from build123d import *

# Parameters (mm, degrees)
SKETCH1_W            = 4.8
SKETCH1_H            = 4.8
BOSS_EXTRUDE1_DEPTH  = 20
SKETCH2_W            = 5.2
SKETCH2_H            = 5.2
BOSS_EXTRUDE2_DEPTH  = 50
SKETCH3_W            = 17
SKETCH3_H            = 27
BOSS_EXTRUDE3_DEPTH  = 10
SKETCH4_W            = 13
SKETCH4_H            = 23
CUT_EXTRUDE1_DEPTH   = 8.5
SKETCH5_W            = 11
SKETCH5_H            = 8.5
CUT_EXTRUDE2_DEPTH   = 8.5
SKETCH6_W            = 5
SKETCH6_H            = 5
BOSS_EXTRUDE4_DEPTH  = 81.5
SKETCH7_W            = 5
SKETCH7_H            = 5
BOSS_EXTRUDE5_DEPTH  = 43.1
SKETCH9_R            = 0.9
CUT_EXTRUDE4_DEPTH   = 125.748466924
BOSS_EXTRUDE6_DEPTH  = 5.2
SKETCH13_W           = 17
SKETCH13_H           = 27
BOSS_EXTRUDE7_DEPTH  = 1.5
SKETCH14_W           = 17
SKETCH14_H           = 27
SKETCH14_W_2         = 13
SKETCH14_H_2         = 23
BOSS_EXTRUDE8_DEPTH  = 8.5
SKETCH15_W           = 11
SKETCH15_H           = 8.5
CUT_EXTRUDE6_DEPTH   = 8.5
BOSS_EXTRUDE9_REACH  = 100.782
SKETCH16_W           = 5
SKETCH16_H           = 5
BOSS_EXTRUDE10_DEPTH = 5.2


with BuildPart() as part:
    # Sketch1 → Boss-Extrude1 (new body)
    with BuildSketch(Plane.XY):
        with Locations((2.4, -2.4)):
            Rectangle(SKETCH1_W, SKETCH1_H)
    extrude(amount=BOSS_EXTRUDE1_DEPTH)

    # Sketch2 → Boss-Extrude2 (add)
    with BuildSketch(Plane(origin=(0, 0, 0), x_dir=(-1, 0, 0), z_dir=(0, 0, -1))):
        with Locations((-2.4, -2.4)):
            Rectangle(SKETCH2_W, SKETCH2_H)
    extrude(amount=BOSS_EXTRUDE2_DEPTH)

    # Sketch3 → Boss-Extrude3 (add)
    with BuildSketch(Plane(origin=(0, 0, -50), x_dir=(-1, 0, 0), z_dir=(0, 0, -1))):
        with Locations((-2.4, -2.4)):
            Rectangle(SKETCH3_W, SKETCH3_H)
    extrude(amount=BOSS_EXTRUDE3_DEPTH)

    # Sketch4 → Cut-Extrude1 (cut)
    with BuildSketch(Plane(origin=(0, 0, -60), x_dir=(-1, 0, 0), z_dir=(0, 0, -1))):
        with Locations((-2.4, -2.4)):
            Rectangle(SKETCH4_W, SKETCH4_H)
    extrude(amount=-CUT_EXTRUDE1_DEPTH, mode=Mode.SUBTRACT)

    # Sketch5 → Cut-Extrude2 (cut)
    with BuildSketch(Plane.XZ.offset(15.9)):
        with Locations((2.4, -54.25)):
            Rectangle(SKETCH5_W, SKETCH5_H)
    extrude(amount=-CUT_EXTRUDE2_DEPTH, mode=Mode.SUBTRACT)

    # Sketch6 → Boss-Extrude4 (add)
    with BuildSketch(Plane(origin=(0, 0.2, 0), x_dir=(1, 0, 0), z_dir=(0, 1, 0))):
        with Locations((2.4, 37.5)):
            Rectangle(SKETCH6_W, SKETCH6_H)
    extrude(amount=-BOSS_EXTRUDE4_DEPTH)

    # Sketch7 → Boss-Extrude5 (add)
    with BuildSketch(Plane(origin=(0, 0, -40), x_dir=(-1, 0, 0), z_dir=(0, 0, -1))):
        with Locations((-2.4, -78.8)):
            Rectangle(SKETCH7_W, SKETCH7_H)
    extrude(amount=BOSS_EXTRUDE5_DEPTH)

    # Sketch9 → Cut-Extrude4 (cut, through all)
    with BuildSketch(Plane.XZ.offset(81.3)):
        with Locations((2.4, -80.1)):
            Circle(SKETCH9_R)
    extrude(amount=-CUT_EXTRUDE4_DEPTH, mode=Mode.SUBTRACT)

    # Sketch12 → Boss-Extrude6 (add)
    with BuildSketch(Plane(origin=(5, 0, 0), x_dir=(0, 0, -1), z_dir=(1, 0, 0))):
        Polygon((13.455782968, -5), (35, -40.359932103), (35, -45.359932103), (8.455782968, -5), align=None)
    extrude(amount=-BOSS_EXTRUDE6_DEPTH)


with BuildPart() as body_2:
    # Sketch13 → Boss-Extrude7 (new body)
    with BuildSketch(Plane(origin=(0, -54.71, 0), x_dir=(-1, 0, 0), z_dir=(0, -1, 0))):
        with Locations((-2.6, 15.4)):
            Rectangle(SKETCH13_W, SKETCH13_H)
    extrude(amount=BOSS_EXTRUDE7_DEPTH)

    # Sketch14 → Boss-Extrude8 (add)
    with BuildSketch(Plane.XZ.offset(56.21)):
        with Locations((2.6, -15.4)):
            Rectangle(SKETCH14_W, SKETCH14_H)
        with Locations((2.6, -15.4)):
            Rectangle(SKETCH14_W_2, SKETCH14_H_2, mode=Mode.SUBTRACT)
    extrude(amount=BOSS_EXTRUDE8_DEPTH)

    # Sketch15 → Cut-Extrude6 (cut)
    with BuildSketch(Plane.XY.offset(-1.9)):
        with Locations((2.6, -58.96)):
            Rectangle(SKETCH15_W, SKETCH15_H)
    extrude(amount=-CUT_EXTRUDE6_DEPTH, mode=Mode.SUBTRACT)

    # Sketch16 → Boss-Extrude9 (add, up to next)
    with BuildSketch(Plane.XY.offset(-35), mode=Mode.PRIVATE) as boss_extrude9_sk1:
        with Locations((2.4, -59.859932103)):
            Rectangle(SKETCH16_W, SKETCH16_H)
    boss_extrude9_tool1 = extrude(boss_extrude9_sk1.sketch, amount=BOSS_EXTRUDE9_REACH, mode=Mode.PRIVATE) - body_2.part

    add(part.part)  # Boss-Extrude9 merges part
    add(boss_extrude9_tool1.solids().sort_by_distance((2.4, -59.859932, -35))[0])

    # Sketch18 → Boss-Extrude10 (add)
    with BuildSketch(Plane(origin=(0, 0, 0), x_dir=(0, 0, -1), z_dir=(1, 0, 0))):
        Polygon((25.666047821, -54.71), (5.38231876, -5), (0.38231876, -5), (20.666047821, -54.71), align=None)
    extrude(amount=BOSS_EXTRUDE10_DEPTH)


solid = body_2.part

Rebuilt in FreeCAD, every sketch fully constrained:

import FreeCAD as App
import Part
import Sketcher
Q = App.Units.Quantity


def add_polygon(sketch, points):
    """Adds a closed chain of lines whose ends are joined by coincident constraints."""
    first, n = sketch.GeometryCount, len(points)
    for a, b in zip(points, points[1:] + points[:1]):
        sketch.addGeometry(Part.LineSegment(App.Vector(*a, 0), App.Vector(*b, 0)), False)
    for i in range(n):
        sketch.addConstraint(Sketcher.Constraint("Coincident", first + i, 2, first + (i + 1) % n, 1))

doc = App.newDocument("Part")
params = doc.addObject("Spreadsheet::Sheet", "Params")
for row, (alias, value) in enumerate([
    ("sketch1_width", "4.8 mm"),
    ("pad1_length", "20 mm"),
    ("sketch2_width", "5.2 mm"),
    ("pad2_length", "50 mm"),
    ("sketch3_width", "17 mm"),
    ("sketch3_height", "27 mm"),
    ("pad3_length", "10 mm"),
    ("sketch4_width", "13 mm"),
    ("sketch4_height", "23 mm"),
    ("pocket1_length", "8.5 mm"),
    ("sketch5_width", "11 mm"),
    ("sketch5_height", "8.5 mm"),
    ("pocket2_length", "8.5 mm"),
    ("sketch6_width", "5 mm"),
    ("pad4_length", "81.5 mm"),
    ("sketch7_width", "5 mm"),
    ("pad5_length", "43.1 mm"),
    ("sketch8_diameter", "1.8 mm"),
    ("sketch9_width", "5 mm"),
    ("pad6_length", "5.2 mm"),
    ("sketch10_width", "17 mm"),
    ("sketch10_height", "27 mm"),
    ("pad7_length", "1.5 mm"),
    ("sketch11_width", "17 mm"),
    ("sketch11_width2", "13 mm"),
    ("sketch11_height", "27 mm"),
    ("sketch11_height2", "23 mm"),
    ("pad8_length", "8.5 mm"),
    ("sketch12_width", "11 mm"),
    ("sketch12_height", "8.5 mm"),
    ("pocket4_length", "8.5 mm"),
    ("sketch13_width", "5 mm"),
    ("sketch14_height", "5 mm"),
    ("pad10_length", "5.2 mm"),
], start=1):
    params.set(f"A{row}", alias)
    params.set(f"B{row}", "=" + value)
    params.setAlias(f"B{row}", alias)

body = doc.addObject("PartDesign::Body", "Body")

# Sketch on XY plane
sketch1 = body.newObject("Sketcher::SketchObject", "Sketch")
sketch1.AttachmentSupport = (doc.getObject("XY_Plane"), [""])
sketch1.MapMode = "FlatFace"
add_polygon(sketch1, [(0, 0), (0, -4.8), (4.8, -4.8), (4.8, 0)])  # lines 0-3
sketch1.addConstraint(Sketcher.Constraint("Vertical", 0))
sketch1.addConstraint(Sketcher.Constraint("Horizontal", 1))
sketch1.addConstraint(Sketcher.Constraint("Vertical", 2))
sketch1.addConstraint(Sketcher.Constraint("Horizontal", 3))
sketch1.addConstraint(Sketcher.Constraint("Coincident", 3, 2, -1, 1))
sketch1.addConstraint(Sketcher.Constraint("Equal", 3, 0))
sketch1.addConstraint(Sketcher.Constraint("DistanceX", 1, 1, 1, 2, Q("4.8 mm")))
sketch1.setExpression("Constraints[10]", "Params.sketch1_width")
pad1 = body.newObject("PartDesign::Pad", "Pad")
pad1.Profile = sketch1
pad1.setExpression("Length", "Params.pad1_length")

# Sketch on XY plane
sketch2 = body.newObject("Sketcher::SketchObject", "Sketch001")
sketch2.AttachmentSupport = (doc.getObject("XY_Plane"), [""])
sketch2.MapMode = "FlatFace"
add_polygon(sketch2, [(5, 0.2), (5, -5), (-0.2, -5), (-0.2, 0.2)])  # lines 0-3
sketch2.addConstraint(Sketcher.Constraint("Vertical", 0))
sketch2.addConstraint(Sketcher.Constraint("Horizontal", 1))
sketch2.addConstraint(Sketcher.Constraint("Vertical", 2))
sketch2.addConstraint(Sketcher.Constraint("Horizontal", 3))
sketch2.addConstraint(Sketcher.Constraint("Equal", 3, 0))
sketch2.addConstraint(Sketcher.Constraint("DistanceX", 1, 2, 1, 1, Q("5.2 mm")))
sketch2.addConstraint(Sketcher.Constraint("DistanceX", -1, 1, 0, 2, Q("5 mm")))
sketch2.addConstraint(Sketcher.Constraint("DistanceY", 0, 2, -1, 1, Q("5 mm")))
sketch2.setExpression("Constraints[9]", "Params.sketch2_width")
pad2 = body.newObject("PartDesign::Pad", "Pad001")
pad2.Profile = sketch2
pad2.setExpression("Length", "Params.pad2_length")
pad2.Reversed = True

# Sketch on XY plane
sketch3 = body.newObject("Sketcher::SketchObject", "Sketch002")
sketch3.AttachmentSupport = (doc.getObject("XY_Plane"), [""])
sketch3.MapMode = "FlatFace"
sketch3.AttachmentOffset = App.Placement(App.Vector(0, 0, -50), App.Rotation())
add_polygon(sketch3, [(10.9, 11.1), (10.9, -15.9), (-6.1, -15.9), (-6.1, 11.1)])  # lines 0-3
sketch3.addConstraint(Sketcher.Constraint("Vertical", 0))
sketch3.addConstraint(Sketcher.Constraint("Horizontal", 1))
sketch3.addConstraint(Sketcher.Constraint("Vertical", 2))
sketch3.addConstraint(Sketcher.Constraint("Horizontal", 3))
sketch3.addConstraint(Sketcher.Constraint("DistanceX", 1, 2, 1, 1, Q("17 mm")))
sketch3.addConstraint(Sketcher.Constraint("DistanceY", 0, 2, 0, 1, Q("27 mm")))
sketch3.addConstraint(Sketcher.Constraint("DistanceX", -1, 1, 0, 2, Q("10.9 mm")))
sketch3.addConstraint(Sketcher.Constraint("DistanceY", 0, 2, -1, 1, Q("15.9 mm")))
sketch3.setExpression("Constraints[8]", "Params.sketch3_width")
sketch3.setExpression("Constraints[9]", "Params.sketch3_height")
pad3 = body.newObject("PartDesign::Pad", "Pad002")
pad3.Profile = sketch3
pad3.setExpression("Length", "Params.pad3_length")
pad3.Reversed = True

# Sketch on XY plane
sketch4 = body.newObject("Sketcher::SketchObject", "Sketch003")
sketch4.AttachmentSupport = (doc.getObject("XY_Plane"), [""])
sketch4.MapMode = "FlatFace"
sketch4.AttachmentOffset = App.Placement(App.Vector(0, 0, -60), App.Rotation())
add_polygon(sketch4, [(8.9, 9.1), (8.9, -13.9), (-4.1, -13.9), (-4.1, 9.1)])  # lines 0-3
sketch4.addConstraint(Sketcher.Constraint("Vertical", 0))
sketch4.addConstraint(Sketcher.Constraint("Horizontal", 1))
sketch4.addConstraint(Sketcher.Constraint("Vertical", 2))
sketch4.addConstraint(Sketcher.Constraint("Horizontal", 3))
sketch4.addConstraint(Sketcher.Constraint("DistanceX", 1, 2, 1, 1, Q("13 mm")))
sketch4.addConstraint(Sketcher.Constraint("DistanceY", 0, 2, 0, 1, Q("23 mm")))
sketch4.addConstraint(Sketcher.Constraint("DistanceX", -1, 1, 0, 2, Q("8.9 mm")))
sketch4.addConstraint(Sketcher.Constraint("DistanceY", 0, 2, -1, 1, Q("13.9 mm")))
sketch4.setExpression("Constraints[8]", "Params.sketch4_width")
sketch4.setExpression("Constraints[9]", "Params.sketch4_height")
pocket1 = body.newObject("PartDesign::Pocket", "Pocket")
pocket1.Profile = sketch4
pocket1.setExpression("Length", "Params.pocket1_length")
pocket1.Reversed = True

# Sketch on XZ plane
sketch5 = body.newObject("Sketcher::SketchObject", "Sketch004")
sketch5.AttachmentSupport = (doc.getObject("XZ_Plane"), [""])
sketch5.MapMode = "FlatFace"
sketch5.AttachmentOffset = App.Placement(App.Vector(0, 0, 15.9), App.Rotation())
add_polygon(sketch5, [(-3.1, -50), (-3.1, -58.5), (7.9, -58.5), (7.9, -50)])  # lines 0-3
sketch5.addConstraint(Sketcher.Constraint("Vertical", 0))
sketch5.addConstraint(Sketcher.Constraint("Horizontal", 1))
sketch5.addConstraint(Sketcher.Constraint("Vertical", 2))
sketch5.addConstraint(Sketcher.Constraint("Horizontal", 3))
sketch5.addConstraint(Sketcher.Constraint("DistanceX", 1, 1, 1, 2, Q("11 mm")))
sketch5.addConstraint(Sketcher.Constraint("DistanceY", 0, 2, 0, 1, Q("8.5 mm")))
sketch5.addConstraint(Sketcher.Constraint("DistanceY", 2, 2, -1, 1, Q("50 mm")))
sketch5.addConstraint(Sketcher.Constraint("DistanceX", 0, 2, -1, 1, Q("3.1 mm")))
sketch5.setExpression("Constraints[8]", "Params.sketch5_width")
sketch5.setExpression("Constraints[9]", "Params.sketch5_height")
pocket2 = body.newObject("PartDesign::Pocket", "Pocket001")
pocket2.Profile = sketch5
pocket2.setExpression("Length", "Params.pocket2_length")

# Sketch on XZ plane
sketch6 = body.newObject("Sketcher::SketchObject", "Sketch005")
sketch6.AttachmentSupport = (doc.getObject("XZ_Plane"), [""])
sketch6.MapMode = "FlatFace"
sketch6.AttachmentOffset = App.Placement(App.Vector(0, 0, -0.2), App.Rotation())
add_polygon(sketch6, [(-0.1, -40), (-0.1, -35), (4.9, -35), (4.9, -40)])  # lines 0-3
sketch6.addConstraint(Sketcher.Constraint("Vertical", 0))
sketch6.addConstraint(Sketcher.Constraint("Horizontal", 1))
sketch6.addConstraint(Sketcher.Constraint("Vertical", 2))
sketch6.addConstraint(Sketcher.Constraint("Horizontal", 3))
sketch6.addConstraint(Sketcher.Constraint("Equal", 3, 0))
sketch6.addConstraint(Sketcher.Constraint("DistanceX", 1, 1, 1, 2, Q("5 mm")))
sketch6.addConstraint(Sketcher.Constraint("DistanceY", 0, 2, -1, 1, Q("35 mm")))
sketch6.addConstraint(Sketcher.Constraint("DistanceX", 0, 2, -1, 1, Q("0.1 mm")))
sketch6.setExpression("Constraints[9]", "Params.sketch6_width")
pad4 = body.newObject("PartDesign::Pad", "Pad003")
pad4.Profile = sketch6
pad4.setExpression("Length", "Params.pad4_length")

# Sketch on XY plane
sketch7 = body.newObject("Sketcher::SketchObject", "Sketch006")
sketch7.AttachmentSupport = (doc.getObject("XY_Plane"), [""])
sketch7.MapMode = "FlatFace"
sketch7.AttachmentOffset = App.Placement(App.Vector(0, 0, -40), App.Rotation())
add_polygon(sketch7, [(4.9, -76.3), (4.9, -81.3), (-0.1, -81.3), (-0.1, -76.3)])  # lines 0-3
sketch7.addConstraint(Sketcher.Constraint("Vertical", 0))
sketch7.addConstraint(Sketcher.Constraint("Horizontal", 1))
sketch7.addConstraint(Sketcher.Constraint("Vertical", 2))
sketch7.addConstraint(Sketcher.Constraint("Horizontal", 3))
sketch7.addConstraint(Sketcher.Constraint("Equal", 3, 0))
sketch7.addConstraint(Sketcher.Constraint("DistanceX", 1, 2, 1, 1, Q("5 mm")))
sketch7.addConstraint(Sketcher.Constraint("DistanceX", -1, 1, 0, 2, Q("4.9 mm")))
sketch7.addConstraint(Sketcher.Constraint("DistanceY", 0, 2, -1, 1, Q("81.3 mm")))
sketch7.setExpression("Constraints[9]", "Params.sketch7_width")
pad5 = body.newObject("PartDesign::Pad", "Pad004")
pad5.Profile = sketch7
pad5.setExpression("Length", "Params.pad5_length")
pad5.Reversed = True

# Sketch on XZ plane
sketch8 = body.newObject("Sketcher::SketchObject", "Sketch007")
sketch8.AttachmentSupport = (doc.getObject("XZ_Plane"), [""])
sketch8.MapMode = "FlatFace"
sketch8.AttachmentOffset = App.Placement(App.Vector(0, 0, 81.3), App.Rotation())
sketch8.addGeometry(Part.Circle(App.Vector(2.4, -80.1, 0), App.Vector(0, 0, 1), 0.9), False)
sketch8.addConstraint(Sketcher.Constraint("Diameter", 0, Q("1.8 mm")))
sketch8.addConstraint(Sketcher.Constraint("DistanceX", -1, 1, 0, 3, Q("2.4 mm")))
sketch8.addConstraint(Sketcher.Constraint("DistanceY", 0, 3, -1, 1, Q("80.1 mm")))
sketch8.setExpression("Constraints[0]", "Params.sketch8_diameter")
pocket3 = body.newObject("PartDesign::Pocket", "Pocket002")
pocket3.Profile = sketch8
pocket3.Type = "ThroughAll"

# Sketch on YZ plane
sketch9 = body.newObject("Sketcher::SketchObject", "Sketch008")
sketch9.AttachmentSupport = (doc.getObject("YZ_Plane"), [""])
sketch9.MapMode = "FlatFace"
sketch9.AttachmentOffset = App.Placement(App.Vector(0, 0, 5), App.Rotation())
add_polygon(sketch9, [(-40.359932, -35), (-5, -13.455783), (-5, -8.455783), (-45.359932, -35)])  # lines 0-3
sketch9.addConstraint(Sketcher.Constraint("Vertical", 1))
sketch9.addConstraint(Sketcher.Constraint("Horizontal", 3))
sketch9.addConstraint(Sketcher.Constraint("Equal", 3, 1))
sketch9.addConstraint(Sketcher.Constraint("DistanceX", 3, 1, 3, 2, Q("5 mm")))
sketch9.addConstraint(Sketcher.Constraint("DistanceX", 0, 2, -1, 1, Q("5 mm")))
sketch9.addConstraint(Sketcher.Constraint("DistanceY", 2, 2, -1, 1, Q("35 mm")))
sketch9.addConstraint(Sketcher.Constraint("Distance", 0, Q("41.406257 mm")))
sketch9.addConstraint(Sketcher.Constraint("Distance", 2, Q("48.306517 mm")))
sketch9.setExpression("Constraints[7]", "Params.sketch9_width")
pad6 = body.newObject("PartDesign::Pad", "Pad005")
pad6.Profile = sketch9
pad6.setExpression("Length", "Params.pad6_length")
pad6.Reversed = True
body2 = doc.addObject("PartDesign::Body", "Body001")
body2.AllowCompound = True

# Sketch on XZ plane
sketch10 = body2.newObject("Sketcher::SketchObject", "Sketch009")
sketch10.AttachmentSupport = (doc.getObject("XZ_Plane001"), [""])
sketch10.MapMode = "FlatFace"
sketch10.AttachmentOffset = App.Placement(App.Vector(0, 0, 54.71), App.Rotation())
add_polygon(sketch10, [(11.1, -28.9), (11.1, -1.9), (-5.9, -1.9), (-5.9, -28.9)])  # lines 0-3
sketch10.addConstraint(Sketcher.Constraint("Vertical", 0))
sketch10.addConstraint(Sketcher.Constraint("Horizontal", 1))
sketch10.addConstraint(Sketcher.Constraint("Vertical", 2))
sketch10.addConstraint(Sketcher.Constraint("Horizontal", 3))
sketch10.addConstraint(Sketcher.Constraint("DistanceX", 1, 2, 1, 1, Q("17 mm")))
sketch10.addConstraint(Sketcher.Constraint("DistanceY", 0, 1, 0, 2, Q("27 mm")))
sketch10.addConstraint(Sketcher.Constraint("DistanceX", -1, 1, 0, 2, Q("11.1 mm")))
sketch10.addConstraint(Sketcher.Constraint("DistanceY", 0, 2, -1, 1, Q("1.9 mm")))
sketch10.setExpression("Constraints[8]", "Params.sketch10_width")
sketch10.setExpression("Constraints[9]", "Params.sketch10_height")
pad7 = body2.newObject("PartDesign::Pad", "Pad006")
pad7.Profile = sketch10
pad7.setExpression("Length", "Params.pad7_length")

# Sketch on XZ plane
sketch11 = body2.newObject("Sketcher::SketchObject", "Sketch010")
sketch11.AttachmentSupport = (doc.getObject("XZ_Plane001"), [""])
sketch11.MapMode = "FlatFace"
sketch11.AttachmentOffset = App.Placement(App.Vector(0, 0, 56.21), App.Rotation())
add_polygon(sketch11, [(-5.9, -1.9), (-5.9, -28.9), (11.1, -28.9), (11.1, -1.9)])  # lines 0-3
add_polygon(sketch11, [(9.1, -26.9), (-3.9, -26.9), (-3.9, -3.9), (9.1, -3.9)])  # lines 4-7
sketch11.addConstraint(Sketcher.Constraint("Vertical", 0))
sketch11.addConstraint(Sketcher.Constraint("Horizontal", 1))
sketch11.addConstraint(Sketcher.Constraint("Vertical", 2))
sketch11.addConstraint(Sketcher.Constraint("Horizontal", 3))
sketch11.addConstraint(Sketcher.Constraint("Horizontal", 4))
sketch11.addConstraint(Sketcher.Constraint("Vertical", 5))
sketch11.addConstraint(Sketcher.Constraint("Horizontal", 6))
sketch11.addConstraint(Sketcher.Constraint("Vertical", 7))
sketch11.addConstraint(Sketcher.Constraint("DistanceX", 1, 1, 1, 2, Q("17 mm")))
sketch11.addConstraint(Sketcher.Constraint("DistanceX", 4, 2, 4, 1, Q("13 mm")))
sketch11.addConstraint(Sketcher.Constraint("DistanceY", 0, 2, 0, 1, Q("27 mm")))
sketch11.addConstraint(Sketcher.Constraint("DistanceY", 5, 1, 5, 2, Q("23 mm")))
sketch11.addConstraint(Sketcher.Constraint("DistanceX", 0, 2, 4, 2, Q("2 mm")))
sketch11.addConstraint(Sketcher.Constraint("DistanceY", 0, 2, 4, 2, Q("2 mm")))
sketch11.addConstraint(Sketcher.Constraint("DistanceX", 0, 2, -1, 1, Q("5.9 mm")))
sketch11.addConstraint(Sketcher.Constraint("DistanceY", 0, 2, -1, 1, Q("28.9 mm")))
sketch11.setExpression("Constraints[16]", "Params.sketch11_width")
sketch11.setExpression("Constraints[17]", "Params.sketch11_width2")
sketch11.setExpression("Constraints[18]", "Params.sketch11_height")
sketch11.setExpression("Constraints[19]", "Params.sketch11_height2")
pad8 = body2.newObject("PartDesign::Pad", "Pad007")
pad8.Profile = sketch11
pad8.setExpression("Length", "Params.pad8_length")

# Sketch on XY plane
sketch12 = body2.newObject("Sketcher::SketchObject", "Sketch011")
sketch12.AttachmentSupport = (doc.getObject("XY_Plane001"), [""])
sketch12.MapMode = "FlatFace"
sketch12.AttachmentOffset = App.Placement(App.Vector(0, 0, -1.9), App.Rotation())
add_polygon(sketch12, [(-2.9, -54.71), (-2.9, -63.21), (8.1, -63.21), (8.1, -54.71)])  # lines 0-3
sketch12.addConstraint(Sketcher.Constraint("Vertical", 0))
sketch12.addConstraint(Sketcher.Constraint("Horizontal", 1))
sketch12.addConstraint(Sketcher.Constraint("Vertical", 2))
sketch12.addConstraint(Sketcher.Constraint("Horizontal", 3))
sketch12.addConstraint(Sketcher.Constraint("DistanceX", 1, 1, 1, 2, Q("11 mm")))
sketch12.addConstraint(Sketcher.Constraint("DistanceY", 0, 2, 0, 1, Q("8.5 mm")))
sketch12.addConstraint(Sketcher.Constraint("DistanceX", 0, 2, -1, 1, Q("2.9 mm")))
sketch12.addConstraint(Sketcher.Constraint("DistanceY", 0, 2, -1, 1, Q("63.21 mm")))
sketch12.setExpression("Constraints[8]", "Params.sketch12_width")
sketch12.setExpression("Constraints[9]", "Params.sketch12_height")
pocket4 = body2.newObject("PartDesign::Pocket", "Pocket003")
pocket4.Profile = sketch12
pocket4.setExpression("Length", "Params.pocket4_length")
doc.recompute()

boolean = body2.newObject("PartDesign::Boolean", "Boolean")
boolean.Type = "Fuse"
boolean.addObjects([body])

# Sketch on XY plane
sketch13 = body2.newObject("Sketcher::SketchObject", "Sketch012")
sketch13.AttachmentSupport = (doc.getObject("XY_Plane001"), [""])
sketch13.MapMode = "FlatFace"
sketch13.AttachmentOffset = App.Placement(App.Vector(0, 0, -35), App.Rotation())
add_polygon(sketch13, [(-0.1, -57.359932), (-0.1, -62.359932), (4.9, -62.359932), (4.9, -57.359932)])  # lines 0-3
sketch13.addConstraint(Sketcher.Constraint("Vertical", 0))
sketch13.addConstraint(Sketcher.Constraint("Horizontal", 1))
sketch13.addConstraint(Sketcher.Constraint("Vertical", 2))
sketch13.addConstraint(Sketcher.Constraint("Horizontal", 3))
sketch13.addConstraint(Sketcher.Constraint("Equal", 3, 0))
sketch13.addConstraint(Sketcher.Constraint("DistanceX", 1, 1, 1, 2, Q("5 mm")))
sketch13.addConstraint(Sketcher.Constraint("DistanceX", 0, 2, -1, 1, Q("0.1 mm")))
sketch13.addConstraint(Sketcher.Constraint("DistanceY", 0, 2, -1, 1, Q("62.359932 mm")))
sketch13.setExpression("Constraints[9]", "Params.sketch13_width")
pad9 = body2.newObject("PartDesign::Pad", "Pad008")
pad9.Profile = sketch13
pad9.Type = "UpToFirst"

# Sketch on YZ plane
sketch14 = body2.newObject("Sketcher::SketchObject", "Sketch013")
sketch14.AttachmentSupport = (doc.getObject("YZ_Plane001"), [""])
sketch14.MapMode = "FlatFace"
add_polygon(sketch14, [(-54.71, -25.666048), (-5, -5.382319), (-5, -0.382319), (-54.71, -20.666048)])  # lines 0-3
sketch14.addConstraint(Sketcher.Constraint("Vertical", 1))
sketch14.addConstraint(Sketcher.Constraint("Vertical", 3))
sketch14.addConstraint(Sketcher.Constraint("Parallel", 0, 2))
sketch14.addConstraint(Sketcher.Constraint("DistanceY", 1, 1, 1, 2, Q("5 mm")))
sketch14.addConstraint(Sketcher.Constraint("DistanceX", 0, 2, -1, 1, Q("5 mm")))
sketch14.addConstraint(Sketcher.Constraint("DistanceX", 2, 2, -1, 1, Q("54.71 mm")))
sketch14.addConstraint(Sketcher.Constraint("DistanceY", 0, 2, -1, 1, Q("5.382319 mm")))
sketch14.addConstraint(Sketcher.Constraint("DistanceY", 2, 2, 0, 2, Q("15.283729 mm")))
sketch14.setExpression("Constraints[7]", "Params.sketch14_height")
pad10 = body2.newObject("PartDesign::Pad", "Pad009")
pad10.Profile = sketch14
pad10.setExpression("Length", "Params.pad10_length")

doc.recompute()
